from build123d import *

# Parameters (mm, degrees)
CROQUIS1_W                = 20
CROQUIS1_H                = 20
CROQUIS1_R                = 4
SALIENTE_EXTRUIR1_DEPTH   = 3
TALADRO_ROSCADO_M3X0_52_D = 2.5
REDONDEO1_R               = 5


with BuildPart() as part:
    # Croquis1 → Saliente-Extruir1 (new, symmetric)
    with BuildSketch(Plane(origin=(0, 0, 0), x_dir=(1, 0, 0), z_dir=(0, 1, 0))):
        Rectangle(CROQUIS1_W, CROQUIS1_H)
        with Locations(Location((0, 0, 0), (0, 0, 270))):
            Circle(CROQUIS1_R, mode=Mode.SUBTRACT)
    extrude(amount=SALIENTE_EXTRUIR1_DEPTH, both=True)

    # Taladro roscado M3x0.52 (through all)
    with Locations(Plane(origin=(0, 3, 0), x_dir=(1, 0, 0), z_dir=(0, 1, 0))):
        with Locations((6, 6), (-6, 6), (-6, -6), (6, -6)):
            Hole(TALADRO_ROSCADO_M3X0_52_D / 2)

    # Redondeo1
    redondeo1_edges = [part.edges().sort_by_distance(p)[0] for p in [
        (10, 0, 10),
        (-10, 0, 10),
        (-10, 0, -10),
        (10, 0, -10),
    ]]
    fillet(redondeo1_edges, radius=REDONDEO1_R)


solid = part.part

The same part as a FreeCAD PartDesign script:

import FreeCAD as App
import Part
import Sketcher
from FreeCAD import Vector


def edges_at(feature, points):
    """Names of the edges that pass closest to the given points."""
    edges = feature.Shape.Edges
    near = lambda p: min(range(len(edges)), key=lambda i: edges[i].distToShape(Part.Vertex(*p))[0])
    return sorted({f"Edge{near(p) + 1}" for p in points})

doc = App.newDocument("Part")
body = doc.addObject("PartDesign::Body", "Body")

sketch1 = body.newObject("Sketcher::SketchObject", "Sketch")
sketch1.AttachmentSupport = (doc.getObject("XZ_Plane"), [""])
sketch1.MapMode = "FlatFace"
sketch1.addGeometry([
    Part.LineSegment(Vector(-10, -10, 0), Vector(-10, 10, 0)),
    Part.LineSegment(Vector(-10, 10, 0), Vector(10, 10, 0)),
    Part.LineSegment(Vector(10, 10, 0), Vector(10, -10, 0)),
    Part.LineSegment(Vector(10, -10, 0), Vector(-10, -10, 0)),
    Part.Circle(Vector(0, 0, 0), Vector(0, 0, 1), 4),
], False)
sketch1.addConstraint([
    Sketcher.Constraint("Coincident", 0, 2, 1, 1),
    Sketcher.Constraint("Coincident", 1, 2, 2, 1),
    Sketcher.Constraint("Coincident", 2, 2, 3, 1),
    Sketcher.Constraint("Coincident", 3, 2, 0, 1),
    Sketcher.Constraint("Vertical", 0),
    Sketcher.Constraint("Horizontal", 1),
    Sketcher.Constraint("Vertical", 2),
    Sketcher.Constraint("Horizontal", 3),
    Sketcher.Constraint("Coincident", 4, 3, -1, 1),
    Sketcher.Constraint("Symmetric", 0, 2, 2, 2, -1, 1),
    Sketcher.Constraint("Equal", 3, 0),
    Sketcher.Constraint("Diameter", 4, 8.0),
    Sketcher.Constraint("DistanceX", 1, 1, 1, 2, 20.0),
])
pad1 = body.newObject("PartDesign::Pad", "Pad")
pad1.Profile = sketch1
pad1.Length = 6
pad1.Midplane = True

sketch2 = body.newObject("Sketcher::SketchObject", "Sketch001")
sketch2.AttachmentSupport = (doc.getObject("XZ_Plane"), [""])
sketch2.MapMode = "FlatFace"
sketch2.AttachmentOffset = App.Placement(Vector(0, 0, -3), App.Rotation())
sketch2.addGeometry([
    Part.Circle(Vector(6, -6, 0), Vector(0, 0, 1), 1.2),
    Part.Circle(Vector(-6, -6, 0), Vector(0, 0, 1), 1.2),
    Part.Circle(Vector(-6, 6, 0), Vector(0, 0, 1), 1.2),
    Part.Circle(Vector(6, 6, 0), Vector(0, 0, 1), 1.2),
], False)
sketch2.addConstraint([
    Sketcher.Constraint("Equal", 0, 1),
    Sketcher.Constraint("Equal", 1, 2),
    Sketcher.Constraint("Equal", 2, 3),
    Sketcher.Constraint("Symmetric", 0, 3, 2, 3, -1, 1),
    Sketcher.Constraint("Symmetric", 1, 3, 3, 3, -1, 1),
    Sketcher.Constraint("Symmetric", 0, 3, 1, 3, -2),
    Sketcher.Constraint("Diameter", 0, 2.5),
    Sketcher.Constraint("DistanceX", -1, 1, 0, 3, 6.0),
    Sketcher.Constraint("DistanceY", 0, 3, -1, 1, 6.0),
])
doc.recompute()
hole = body.newObject("PartDesign::Hole", "Hole")
hole.Profile = sketch2
hole.ThreadType = "None"
hole.Diameter = 2.5
hole.DepthType = "ThroughAll"
hole.Reversed = True
doc.recompute()

fillet = body.newObject("PartDesign::Fillet", "Fillet")
fillet.Base = (hole, edges_at(hole, [
    (10, 0, 10),
    (-10, 0, 10),
    (-10, 0, -10),
    (10, 0, -10),
]))
fillet.Radius = 5

doc.recompute()
